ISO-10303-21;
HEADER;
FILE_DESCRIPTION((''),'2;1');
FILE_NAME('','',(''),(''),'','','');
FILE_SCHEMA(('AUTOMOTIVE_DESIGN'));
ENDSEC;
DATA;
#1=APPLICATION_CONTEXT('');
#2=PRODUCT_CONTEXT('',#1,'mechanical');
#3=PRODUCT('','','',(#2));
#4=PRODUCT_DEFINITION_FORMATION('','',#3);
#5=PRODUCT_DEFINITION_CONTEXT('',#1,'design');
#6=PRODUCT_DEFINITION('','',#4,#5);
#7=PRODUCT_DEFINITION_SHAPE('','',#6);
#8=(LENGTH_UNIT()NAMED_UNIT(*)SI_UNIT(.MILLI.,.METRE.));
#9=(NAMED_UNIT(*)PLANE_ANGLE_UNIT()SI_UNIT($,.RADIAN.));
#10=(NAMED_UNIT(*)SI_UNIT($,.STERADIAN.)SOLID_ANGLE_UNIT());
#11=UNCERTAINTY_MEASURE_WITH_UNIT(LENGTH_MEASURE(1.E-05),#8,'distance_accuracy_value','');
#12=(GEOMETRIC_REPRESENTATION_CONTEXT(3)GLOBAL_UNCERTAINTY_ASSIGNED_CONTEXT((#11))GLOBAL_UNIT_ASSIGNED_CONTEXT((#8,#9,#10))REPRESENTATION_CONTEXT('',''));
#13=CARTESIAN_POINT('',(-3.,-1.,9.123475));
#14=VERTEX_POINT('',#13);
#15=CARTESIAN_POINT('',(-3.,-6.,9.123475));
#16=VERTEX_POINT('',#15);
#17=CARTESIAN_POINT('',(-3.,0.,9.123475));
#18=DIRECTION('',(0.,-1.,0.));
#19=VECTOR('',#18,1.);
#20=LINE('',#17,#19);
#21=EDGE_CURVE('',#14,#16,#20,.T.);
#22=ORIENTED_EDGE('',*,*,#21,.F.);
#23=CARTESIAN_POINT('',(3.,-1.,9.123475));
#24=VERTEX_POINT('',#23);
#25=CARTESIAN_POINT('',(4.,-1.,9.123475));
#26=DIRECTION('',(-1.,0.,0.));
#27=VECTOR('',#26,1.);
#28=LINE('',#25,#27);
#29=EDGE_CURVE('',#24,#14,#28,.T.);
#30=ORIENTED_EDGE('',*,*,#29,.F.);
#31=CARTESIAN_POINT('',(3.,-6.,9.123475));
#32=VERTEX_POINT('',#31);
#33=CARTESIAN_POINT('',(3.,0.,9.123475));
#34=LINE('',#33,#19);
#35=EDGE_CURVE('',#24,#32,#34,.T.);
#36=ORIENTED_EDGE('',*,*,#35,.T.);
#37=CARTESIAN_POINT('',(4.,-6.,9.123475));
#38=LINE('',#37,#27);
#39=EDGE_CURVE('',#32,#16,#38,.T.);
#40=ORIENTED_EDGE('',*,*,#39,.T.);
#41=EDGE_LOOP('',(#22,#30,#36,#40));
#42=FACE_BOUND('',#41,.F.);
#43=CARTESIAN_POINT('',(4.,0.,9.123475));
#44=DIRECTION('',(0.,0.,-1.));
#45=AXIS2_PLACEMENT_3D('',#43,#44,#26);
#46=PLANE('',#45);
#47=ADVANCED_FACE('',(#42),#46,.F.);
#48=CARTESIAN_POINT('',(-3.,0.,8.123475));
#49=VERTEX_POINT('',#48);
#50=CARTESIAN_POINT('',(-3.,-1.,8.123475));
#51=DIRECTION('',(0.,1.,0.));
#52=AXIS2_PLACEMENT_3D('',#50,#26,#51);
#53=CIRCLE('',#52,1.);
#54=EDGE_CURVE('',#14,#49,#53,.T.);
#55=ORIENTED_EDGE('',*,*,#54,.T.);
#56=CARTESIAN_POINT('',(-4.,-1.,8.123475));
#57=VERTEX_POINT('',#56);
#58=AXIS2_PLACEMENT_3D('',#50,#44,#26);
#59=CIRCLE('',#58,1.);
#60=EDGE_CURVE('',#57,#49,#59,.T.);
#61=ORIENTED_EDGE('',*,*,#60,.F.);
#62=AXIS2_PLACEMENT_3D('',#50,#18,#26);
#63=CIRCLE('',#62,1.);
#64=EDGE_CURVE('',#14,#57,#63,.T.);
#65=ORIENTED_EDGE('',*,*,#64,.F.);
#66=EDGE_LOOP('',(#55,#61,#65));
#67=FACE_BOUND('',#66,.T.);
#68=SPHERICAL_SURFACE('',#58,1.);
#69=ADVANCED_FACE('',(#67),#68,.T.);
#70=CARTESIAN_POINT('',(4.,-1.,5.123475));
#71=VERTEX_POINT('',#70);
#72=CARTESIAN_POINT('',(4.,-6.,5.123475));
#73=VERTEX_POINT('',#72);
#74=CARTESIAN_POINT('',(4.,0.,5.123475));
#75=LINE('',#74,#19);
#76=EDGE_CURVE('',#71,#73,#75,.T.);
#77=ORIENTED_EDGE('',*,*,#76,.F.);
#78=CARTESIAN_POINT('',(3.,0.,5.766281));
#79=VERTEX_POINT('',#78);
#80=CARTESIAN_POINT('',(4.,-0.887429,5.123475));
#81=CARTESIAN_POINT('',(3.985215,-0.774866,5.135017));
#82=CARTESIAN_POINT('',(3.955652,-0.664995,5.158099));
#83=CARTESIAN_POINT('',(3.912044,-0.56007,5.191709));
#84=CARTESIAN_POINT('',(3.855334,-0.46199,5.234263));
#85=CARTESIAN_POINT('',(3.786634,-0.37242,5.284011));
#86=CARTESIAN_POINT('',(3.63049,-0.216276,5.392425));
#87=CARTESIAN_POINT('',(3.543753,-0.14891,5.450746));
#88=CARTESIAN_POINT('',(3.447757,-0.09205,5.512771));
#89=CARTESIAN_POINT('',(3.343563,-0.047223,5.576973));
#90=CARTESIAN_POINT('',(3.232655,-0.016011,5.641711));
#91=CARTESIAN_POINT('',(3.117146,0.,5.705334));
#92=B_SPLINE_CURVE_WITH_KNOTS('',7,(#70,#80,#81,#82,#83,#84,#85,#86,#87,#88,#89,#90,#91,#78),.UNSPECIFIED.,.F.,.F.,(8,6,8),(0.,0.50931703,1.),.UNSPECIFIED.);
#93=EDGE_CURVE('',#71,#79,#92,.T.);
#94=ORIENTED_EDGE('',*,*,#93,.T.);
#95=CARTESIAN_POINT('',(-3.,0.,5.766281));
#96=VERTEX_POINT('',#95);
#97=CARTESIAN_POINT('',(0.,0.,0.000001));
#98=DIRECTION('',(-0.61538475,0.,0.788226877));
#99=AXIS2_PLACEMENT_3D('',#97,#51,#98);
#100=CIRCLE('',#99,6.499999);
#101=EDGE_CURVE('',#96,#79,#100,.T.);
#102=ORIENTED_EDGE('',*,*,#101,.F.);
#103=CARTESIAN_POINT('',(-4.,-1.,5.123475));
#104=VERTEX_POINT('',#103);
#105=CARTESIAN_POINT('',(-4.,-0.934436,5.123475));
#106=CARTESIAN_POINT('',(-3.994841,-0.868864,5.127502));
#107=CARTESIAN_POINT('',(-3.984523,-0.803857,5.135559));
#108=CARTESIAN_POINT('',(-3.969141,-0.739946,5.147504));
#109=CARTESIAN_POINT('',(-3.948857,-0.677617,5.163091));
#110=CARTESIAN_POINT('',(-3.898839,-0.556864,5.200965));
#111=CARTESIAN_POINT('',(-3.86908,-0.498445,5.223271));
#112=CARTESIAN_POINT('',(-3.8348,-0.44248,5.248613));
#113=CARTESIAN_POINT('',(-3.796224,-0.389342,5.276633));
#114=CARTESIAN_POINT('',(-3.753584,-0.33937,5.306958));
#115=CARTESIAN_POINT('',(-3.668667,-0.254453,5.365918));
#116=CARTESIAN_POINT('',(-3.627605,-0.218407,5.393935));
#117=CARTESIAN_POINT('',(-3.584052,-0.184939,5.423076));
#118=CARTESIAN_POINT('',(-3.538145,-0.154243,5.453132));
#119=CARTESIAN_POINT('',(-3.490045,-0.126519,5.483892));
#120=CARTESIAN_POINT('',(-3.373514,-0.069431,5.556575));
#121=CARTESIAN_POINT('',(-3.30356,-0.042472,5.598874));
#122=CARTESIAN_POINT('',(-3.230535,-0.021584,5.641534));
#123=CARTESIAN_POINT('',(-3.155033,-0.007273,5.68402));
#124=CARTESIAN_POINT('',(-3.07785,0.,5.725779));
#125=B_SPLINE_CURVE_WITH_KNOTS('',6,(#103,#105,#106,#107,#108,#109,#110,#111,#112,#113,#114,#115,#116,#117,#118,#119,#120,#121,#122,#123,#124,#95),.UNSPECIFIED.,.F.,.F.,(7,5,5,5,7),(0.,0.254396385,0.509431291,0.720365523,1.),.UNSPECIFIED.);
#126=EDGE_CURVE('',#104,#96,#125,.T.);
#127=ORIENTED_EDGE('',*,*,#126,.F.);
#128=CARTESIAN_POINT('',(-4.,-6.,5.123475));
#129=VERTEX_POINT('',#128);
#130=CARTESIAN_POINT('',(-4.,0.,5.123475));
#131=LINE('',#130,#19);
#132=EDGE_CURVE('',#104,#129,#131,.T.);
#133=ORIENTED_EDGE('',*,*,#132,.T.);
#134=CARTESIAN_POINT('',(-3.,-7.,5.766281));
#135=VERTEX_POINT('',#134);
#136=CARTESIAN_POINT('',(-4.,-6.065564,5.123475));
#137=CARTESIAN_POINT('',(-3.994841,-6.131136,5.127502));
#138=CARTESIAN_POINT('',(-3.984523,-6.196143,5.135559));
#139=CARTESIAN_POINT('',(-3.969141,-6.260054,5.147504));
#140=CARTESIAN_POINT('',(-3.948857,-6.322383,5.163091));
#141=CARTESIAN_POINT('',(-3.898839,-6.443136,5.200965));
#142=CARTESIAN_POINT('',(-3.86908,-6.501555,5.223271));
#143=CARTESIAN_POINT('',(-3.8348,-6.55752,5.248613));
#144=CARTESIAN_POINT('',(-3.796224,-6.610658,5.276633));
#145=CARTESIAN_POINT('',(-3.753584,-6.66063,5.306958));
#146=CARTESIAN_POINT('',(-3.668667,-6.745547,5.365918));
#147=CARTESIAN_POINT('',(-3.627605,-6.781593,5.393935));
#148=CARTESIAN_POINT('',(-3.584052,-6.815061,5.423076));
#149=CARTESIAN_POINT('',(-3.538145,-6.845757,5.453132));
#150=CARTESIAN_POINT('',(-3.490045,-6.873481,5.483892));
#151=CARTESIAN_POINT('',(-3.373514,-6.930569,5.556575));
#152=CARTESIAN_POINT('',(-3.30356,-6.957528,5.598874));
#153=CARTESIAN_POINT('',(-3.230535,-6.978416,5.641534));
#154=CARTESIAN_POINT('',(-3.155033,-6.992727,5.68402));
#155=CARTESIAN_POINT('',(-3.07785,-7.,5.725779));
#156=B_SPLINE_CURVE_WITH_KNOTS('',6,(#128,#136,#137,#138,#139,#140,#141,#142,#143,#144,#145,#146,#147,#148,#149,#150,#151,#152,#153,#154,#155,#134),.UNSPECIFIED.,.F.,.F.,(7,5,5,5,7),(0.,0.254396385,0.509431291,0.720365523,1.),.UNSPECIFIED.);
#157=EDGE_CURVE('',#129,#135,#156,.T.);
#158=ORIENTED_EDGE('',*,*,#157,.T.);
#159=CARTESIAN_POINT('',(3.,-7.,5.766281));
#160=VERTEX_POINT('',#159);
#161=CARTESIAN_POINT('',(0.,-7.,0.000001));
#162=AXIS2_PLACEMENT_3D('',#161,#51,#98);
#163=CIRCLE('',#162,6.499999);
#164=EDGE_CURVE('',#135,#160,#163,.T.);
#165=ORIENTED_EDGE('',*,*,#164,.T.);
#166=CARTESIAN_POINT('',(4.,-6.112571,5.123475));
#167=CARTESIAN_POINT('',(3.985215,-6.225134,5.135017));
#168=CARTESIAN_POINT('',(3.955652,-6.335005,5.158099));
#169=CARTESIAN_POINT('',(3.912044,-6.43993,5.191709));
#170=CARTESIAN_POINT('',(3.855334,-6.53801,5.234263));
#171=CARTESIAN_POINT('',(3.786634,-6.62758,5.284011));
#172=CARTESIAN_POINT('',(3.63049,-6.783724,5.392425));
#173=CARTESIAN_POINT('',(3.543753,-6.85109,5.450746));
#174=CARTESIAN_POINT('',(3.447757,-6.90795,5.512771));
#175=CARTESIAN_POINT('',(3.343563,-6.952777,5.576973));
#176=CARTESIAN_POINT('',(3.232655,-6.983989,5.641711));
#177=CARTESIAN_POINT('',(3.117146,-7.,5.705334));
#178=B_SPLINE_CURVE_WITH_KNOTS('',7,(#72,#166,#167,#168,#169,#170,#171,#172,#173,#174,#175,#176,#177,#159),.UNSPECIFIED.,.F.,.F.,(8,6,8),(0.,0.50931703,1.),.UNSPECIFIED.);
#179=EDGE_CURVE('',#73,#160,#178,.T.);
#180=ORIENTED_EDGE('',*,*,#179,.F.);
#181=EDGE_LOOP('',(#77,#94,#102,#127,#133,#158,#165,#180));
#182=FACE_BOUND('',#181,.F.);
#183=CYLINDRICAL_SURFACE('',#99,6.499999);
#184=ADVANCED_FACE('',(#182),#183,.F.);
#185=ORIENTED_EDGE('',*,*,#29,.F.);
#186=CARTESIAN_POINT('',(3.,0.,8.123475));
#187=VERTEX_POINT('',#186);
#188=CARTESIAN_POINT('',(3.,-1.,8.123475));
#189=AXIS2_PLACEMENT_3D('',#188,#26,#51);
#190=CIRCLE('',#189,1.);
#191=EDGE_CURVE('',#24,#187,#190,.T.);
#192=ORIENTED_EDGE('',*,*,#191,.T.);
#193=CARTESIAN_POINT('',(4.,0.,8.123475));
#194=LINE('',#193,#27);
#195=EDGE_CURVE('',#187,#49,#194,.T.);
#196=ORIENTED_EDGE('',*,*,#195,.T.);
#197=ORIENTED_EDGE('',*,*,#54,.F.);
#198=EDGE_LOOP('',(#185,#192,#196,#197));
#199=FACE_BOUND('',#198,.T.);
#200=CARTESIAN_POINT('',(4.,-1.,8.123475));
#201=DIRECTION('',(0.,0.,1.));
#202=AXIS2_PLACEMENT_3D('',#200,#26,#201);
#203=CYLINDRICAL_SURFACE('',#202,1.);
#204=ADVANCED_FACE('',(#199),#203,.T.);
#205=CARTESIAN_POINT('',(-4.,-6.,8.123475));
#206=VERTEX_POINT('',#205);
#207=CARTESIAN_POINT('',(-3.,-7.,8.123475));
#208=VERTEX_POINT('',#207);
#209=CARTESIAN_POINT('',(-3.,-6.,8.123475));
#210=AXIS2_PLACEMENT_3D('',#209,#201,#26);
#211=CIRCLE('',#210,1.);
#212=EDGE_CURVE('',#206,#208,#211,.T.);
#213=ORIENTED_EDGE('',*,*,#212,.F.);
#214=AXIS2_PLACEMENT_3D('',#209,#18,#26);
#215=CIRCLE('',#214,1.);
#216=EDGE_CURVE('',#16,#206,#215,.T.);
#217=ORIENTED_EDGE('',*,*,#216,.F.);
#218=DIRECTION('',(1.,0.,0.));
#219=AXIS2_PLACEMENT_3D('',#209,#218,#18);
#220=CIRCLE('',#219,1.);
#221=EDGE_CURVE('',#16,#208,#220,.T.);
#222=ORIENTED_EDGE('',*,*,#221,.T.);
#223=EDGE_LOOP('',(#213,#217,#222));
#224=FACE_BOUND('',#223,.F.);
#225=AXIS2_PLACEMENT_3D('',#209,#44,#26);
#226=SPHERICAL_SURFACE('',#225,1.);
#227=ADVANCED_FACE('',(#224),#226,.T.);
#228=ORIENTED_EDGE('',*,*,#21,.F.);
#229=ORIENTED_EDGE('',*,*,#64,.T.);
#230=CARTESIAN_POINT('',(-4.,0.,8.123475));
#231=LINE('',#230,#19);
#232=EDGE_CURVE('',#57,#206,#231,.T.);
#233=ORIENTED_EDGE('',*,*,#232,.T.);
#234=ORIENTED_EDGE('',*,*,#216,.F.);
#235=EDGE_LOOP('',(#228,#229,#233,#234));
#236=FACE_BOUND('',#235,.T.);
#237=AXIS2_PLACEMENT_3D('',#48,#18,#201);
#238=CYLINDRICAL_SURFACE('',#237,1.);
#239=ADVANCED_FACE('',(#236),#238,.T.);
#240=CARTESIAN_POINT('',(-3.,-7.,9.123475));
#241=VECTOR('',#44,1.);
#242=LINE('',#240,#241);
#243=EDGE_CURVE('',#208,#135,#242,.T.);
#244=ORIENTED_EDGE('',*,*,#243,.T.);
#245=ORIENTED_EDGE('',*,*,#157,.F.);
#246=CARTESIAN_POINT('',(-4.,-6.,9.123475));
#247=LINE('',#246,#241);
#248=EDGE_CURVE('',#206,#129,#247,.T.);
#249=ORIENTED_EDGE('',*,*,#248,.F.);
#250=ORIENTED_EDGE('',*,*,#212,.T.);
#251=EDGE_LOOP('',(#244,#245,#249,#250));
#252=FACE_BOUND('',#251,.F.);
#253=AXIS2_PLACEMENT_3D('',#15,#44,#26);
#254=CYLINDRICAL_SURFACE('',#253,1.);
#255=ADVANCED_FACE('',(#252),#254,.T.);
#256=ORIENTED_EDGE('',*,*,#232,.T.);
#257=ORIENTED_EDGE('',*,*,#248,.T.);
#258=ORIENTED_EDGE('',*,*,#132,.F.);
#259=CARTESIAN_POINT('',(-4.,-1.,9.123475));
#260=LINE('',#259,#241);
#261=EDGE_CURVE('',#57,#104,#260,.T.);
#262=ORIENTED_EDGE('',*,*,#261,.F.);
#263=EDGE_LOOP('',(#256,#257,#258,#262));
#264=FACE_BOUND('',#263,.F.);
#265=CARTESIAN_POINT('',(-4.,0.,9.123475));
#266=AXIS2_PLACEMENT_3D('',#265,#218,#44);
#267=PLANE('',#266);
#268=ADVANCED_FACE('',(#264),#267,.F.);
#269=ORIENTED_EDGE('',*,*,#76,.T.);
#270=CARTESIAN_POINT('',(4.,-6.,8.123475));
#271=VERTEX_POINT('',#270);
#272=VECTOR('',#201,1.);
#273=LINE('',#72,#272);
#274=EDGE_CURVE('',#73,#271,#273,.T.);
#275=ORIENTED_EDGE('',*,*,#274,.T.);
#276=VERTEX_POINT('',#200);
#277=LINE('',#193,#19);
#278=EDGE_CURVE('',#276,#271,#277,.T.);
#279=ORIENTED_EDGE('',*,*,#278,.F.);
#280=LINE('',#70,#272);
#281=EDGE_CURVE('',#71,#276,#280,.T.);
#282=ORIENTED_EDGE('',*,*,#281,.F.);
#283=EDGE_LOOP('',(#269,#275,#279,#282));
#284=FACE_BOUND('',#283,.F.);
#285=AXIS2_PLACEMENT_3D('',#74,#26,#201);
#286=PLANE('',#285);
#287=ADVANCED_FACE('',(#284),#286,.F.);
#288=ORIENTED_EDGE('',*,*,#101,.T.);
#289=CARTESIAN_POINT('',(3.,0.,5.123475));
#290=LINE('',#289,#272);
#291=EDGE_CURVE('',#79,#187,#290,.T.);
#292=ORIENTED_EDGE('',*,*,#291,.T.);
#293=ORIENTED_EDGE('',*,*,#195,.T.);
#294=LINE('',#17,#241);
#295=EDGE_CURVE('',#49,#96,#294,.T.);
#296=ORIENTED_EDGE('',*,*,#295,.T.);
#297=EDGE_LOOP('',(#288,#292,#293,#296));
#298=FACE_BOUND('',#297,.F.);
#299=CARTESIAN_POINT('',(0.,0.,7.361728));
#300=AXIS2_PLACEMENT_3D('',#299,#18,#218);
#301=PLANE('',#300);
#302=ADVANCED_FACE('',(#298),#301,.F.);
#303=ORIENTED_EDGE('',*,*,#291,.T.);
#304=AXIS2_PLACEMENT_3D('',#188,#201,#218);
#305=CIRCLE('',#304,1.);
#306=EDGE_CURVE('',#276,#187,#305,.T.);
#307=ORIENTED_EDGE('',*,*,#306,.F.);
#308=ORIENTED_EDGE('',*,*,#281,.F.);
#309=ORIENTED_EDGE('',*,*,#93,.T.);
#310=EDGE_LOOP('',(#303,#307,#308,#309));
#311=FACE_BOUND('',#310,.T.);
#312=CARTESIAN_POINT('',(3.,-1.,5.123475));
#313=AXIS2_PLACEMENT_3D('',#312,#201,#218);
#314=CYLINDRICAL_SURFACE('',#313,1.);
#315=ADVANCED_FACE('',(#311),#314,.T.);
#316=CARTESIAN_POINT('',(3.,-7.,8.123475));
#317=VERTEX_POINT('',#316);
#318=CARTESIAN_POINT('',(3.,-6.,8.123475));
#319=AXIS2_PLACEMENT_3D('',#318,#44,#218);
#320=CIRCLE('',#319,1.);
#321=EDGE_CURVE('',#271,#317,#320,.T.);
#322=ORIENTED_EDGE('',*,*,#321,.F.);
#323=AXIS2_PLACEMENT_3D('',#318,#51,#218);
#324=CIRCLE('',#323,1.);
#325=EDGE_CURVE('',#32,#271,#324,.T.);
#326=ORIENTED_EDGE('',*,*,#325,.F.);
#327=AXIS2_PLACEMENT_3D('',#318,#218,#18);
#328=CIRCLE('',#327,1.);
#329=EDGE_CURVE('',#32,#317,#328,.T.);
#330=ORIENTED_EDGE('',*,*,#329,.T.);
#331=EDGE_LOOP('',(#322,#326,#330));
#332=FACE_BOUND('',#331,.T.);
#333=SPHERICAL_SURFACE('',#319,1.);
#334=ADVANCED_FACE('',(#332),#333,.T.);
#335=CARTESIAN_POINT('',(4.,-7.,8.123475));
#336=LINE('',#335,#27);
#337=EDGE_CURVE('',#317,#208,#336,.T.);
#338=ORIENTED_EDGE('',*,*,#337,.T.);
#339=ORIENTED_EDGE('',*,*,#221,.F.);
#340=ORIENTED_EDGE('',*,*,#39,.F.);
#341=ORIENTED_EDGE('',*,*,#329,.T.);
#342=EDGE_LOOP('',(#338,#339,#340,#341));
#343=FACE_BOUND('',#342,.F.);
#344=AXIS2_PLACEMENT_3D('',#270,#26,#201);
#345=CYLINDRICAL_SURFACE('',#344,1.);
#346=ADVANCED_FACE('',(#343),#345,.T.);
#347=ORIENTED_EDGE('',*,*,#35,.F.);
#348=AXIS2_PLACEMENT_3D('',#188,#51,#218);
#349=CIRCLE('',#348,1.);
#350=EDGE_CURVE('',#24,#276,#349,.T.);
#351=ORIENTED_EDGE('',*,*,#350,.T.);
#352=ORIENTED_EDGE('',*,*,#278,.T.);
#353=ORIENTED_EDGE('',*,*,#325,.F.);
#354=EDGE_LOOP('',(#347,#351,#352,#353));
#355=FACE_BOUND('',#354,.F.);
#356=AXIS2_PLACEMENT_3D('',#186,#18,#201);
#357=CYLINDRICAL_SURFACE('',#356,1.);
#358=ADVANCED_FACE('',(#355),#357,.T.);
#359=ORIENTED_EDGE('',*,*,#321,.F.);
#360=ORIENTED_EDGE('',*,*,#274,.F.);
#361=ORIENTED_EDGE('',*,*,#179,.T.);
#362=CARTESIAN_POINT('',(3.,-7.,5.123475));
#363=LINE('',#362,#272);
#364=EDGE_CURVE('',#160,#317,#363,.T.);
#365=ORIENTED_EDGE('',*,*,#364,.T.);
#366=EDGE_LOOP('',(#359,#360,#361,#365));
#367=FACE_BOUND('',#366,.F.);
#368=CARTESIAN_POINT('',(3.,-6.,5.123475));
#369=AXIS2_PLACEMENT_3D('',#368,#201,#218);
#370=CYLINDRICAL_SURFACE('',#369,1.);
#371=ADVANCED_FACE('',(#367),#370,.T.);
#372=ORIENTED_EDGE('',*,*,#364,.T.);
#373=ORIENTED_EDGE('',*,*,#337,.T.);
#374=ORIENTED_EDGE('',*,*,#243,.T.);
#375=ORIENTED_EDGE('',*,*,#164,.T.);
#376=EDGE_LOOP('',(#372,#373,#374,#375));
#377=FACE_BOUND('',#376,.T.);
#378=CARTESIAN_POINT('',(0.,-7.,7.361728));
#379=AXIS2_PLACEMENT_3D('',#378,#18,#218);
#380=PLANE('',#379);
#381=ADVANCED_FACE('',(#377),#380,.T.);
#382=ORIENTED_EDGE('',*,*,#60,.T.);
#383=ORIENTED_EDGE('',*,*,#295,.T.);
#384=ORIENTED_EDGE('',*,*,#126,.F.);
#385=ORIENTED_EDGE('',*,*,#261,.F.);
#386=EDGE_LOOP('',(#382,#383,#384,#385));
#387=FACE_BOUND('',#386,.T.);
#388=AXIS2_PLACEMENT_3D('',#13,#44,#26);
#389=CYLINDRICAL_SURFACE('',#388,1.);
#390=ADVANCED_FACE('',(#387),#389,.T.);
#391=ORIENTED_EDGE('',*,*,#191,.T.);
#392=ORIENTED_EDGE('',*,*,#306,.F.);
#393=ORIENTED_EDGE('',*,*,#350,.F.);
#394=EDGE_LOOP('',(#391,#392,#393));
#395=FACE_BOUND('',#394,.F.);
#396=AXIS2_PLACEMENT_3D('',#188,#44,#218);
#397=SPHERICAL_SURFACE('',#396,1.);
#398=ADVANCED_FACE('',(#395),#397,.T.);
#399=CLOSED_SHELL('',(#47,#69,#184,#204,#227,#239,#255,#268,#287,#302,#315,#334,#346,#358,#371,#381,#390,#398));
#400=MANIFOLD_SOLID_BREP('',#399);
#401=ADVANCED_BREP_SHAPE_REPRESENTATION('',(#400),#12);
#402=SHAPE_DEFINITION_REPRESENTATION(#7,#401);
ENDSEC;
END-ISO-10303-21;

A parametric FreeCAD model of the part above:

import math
import FreeCAD as App
import Part
import Sketcher

V = App.Vector


def edges_at(feature, points):
    """Names of the edges that pass closest to the given points."""
    edges = feature.Shape.Edges
    near = lambda p: min(range(len(edges)), key=lambda i: edges[i].distToShape(Part.Vertex(*p))[0])
    return sorted({f"Edge{near(p) + 1}" for p in points})

doc = App.newDocument("Part")
body = doc.addObject("PartDesign::Body", "Body")

sketch1 = doc.addObject("Sketcher::SketchObject", "Sketch")
body.addObject(sketch1)
sketch1.AttachmentSupport = (doc.XZ_Plane, [""])
sketch1.MapMode = "FlatFace"
sketch1.addGeometry(Part.LineSegment(V(4, 9.123475, 0), V(-4, 9.123475, 0)), False)
sketch1.addGeometry(Part.LineSegment(V(-4, 9.123475, 0), V(-4, 5.123475, 0)), False)
sketch1.addGeometry(Part.ArcOfCircle(Part.Circle(V(0, 0.000001, 0), V(0, 0, 1), 6.499999), math.radians(52.020118), math.radians(127.979882)), False)
sketch1.addGeometry(Part.LineSegment(V(4, 5.123475, 0), V(4, 9.123475, 0)), False)
sketch1.addConstraint(Sketcher.Constraint("Coincident", 0, 2, 1, 1))
sketch1.addConstraint(Sketcher.Constraint("Coincident", 1, 2, 2, 2))
sketch1.addConstraint(Sketcher.Constraint("Coincident", 2, 1, 3, 1))
sketch1.addConstraint(Sketcher.Constraint("Coincident", 3, 2, 0, 1))
sketch1.addConstraint(Sketcher.Constraint("Horizontal", 0))
sketch1.addConstraint(Sketcher.Constraint("Vertical", 1))
sketch1.addConstraint(Sketcher.Constraint("Vertical", 3))
sketch1.addConstraint(Sketcher.Constraint("Coincident", 2, 3, -1, 1))
sketch1.addConstraint(Sketcher.Constraint("Horizontal", 1, 2, 2, 1))
sketch1.addConstraint(Sketcher.Constraint("Radius", 2, 6.499999))
sketch1.addConstraint(Sketcher.Constraint("DistanceX", 0, 2, 0, 1, 8.0))
sketch1.addConstraint(Sketcher.Constraint("DistanceY", 1, 2, 1, 1, 4.0))
pad1 = doc.addObject("PartDesign::Pad", "Pad")
body.addObject(pad1)
pad1.Profile = sketch1
pad1.Length = 7
doc.recompute()

fillet = doc.addObject("PartDesign::Fillet", "Fillet")
body.addObject(fillet)
fillet.Base = (pad1, edges_at(pad1, [
    (-4, -7, 7.123),
    (4, -7, 7.123),
    (4, 0, 7.123),
    (-4, 0, 7.123),
    (4, -3.5, 9.123),
    (-4, -3.5, 9.123),
    (0, 0, 9.123),
    (0, -7, 9.123),
]))
fillet.Radius = 1

doc.recompute()
